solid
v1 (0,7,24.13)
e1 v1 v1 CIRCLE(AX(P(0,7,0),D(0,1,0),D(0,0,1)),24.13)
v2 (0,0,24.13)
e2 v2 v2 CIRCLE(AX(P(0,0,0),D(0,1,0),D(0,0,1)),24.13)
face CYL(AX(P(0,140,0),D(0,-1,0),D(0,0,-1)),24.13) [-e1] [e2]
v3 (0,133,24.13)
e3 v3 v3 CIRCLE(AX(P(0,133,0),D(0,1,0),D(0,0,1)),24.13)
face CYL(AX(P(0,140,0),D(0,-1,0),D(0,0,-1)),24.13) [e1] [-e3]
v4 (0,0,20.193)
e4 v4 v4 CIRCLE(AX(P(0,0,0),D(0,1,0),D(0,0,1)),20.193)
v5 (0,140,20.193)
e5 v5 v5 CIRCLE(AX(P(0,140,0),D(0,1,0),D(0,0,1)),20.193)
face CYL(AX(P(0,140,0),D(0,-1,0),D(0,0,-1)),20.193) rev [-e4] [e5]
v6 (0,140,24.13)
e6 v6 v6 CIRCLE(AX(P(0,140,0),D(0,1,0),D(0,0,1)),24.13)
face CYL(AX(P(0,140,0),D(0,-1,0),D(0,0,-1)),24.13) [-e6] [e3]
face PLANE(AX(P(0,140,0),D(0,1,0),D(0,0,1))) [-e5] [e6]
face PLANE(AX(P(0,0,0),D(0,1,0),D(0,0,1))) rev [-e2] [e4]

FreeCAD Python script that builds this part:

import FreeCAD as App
import Part
import Sketcher
Q = App.Units.Quantity

doc = App.newDocument("Part")
params = doc.addObject("Spreadsheet::Sheet", "Params")
for row, (alias, value) in enumerate([
    ("sketch1_diameter", "1.9 in"),
    ("sketch1_diameter2", "1.59 in"),
    ("pad1_length", "140 mm"),
], start=1):
    params.set(f"A{row}", alias)
    params.set(f"B{row}", "=" + value)
    params.setAlias(f"B{row}", alias)

body = doc.addObject("PartDesign::Body", "Body")

sketch1 = body.newObject("Sketcher::SketchObject", "Sketch")
sketch1.AttachmentSupport = (doc.getObject("XZ_Plane"), [""])
sketch1.MapMode = "FlatFace"
sketch1.addGeometry([
    Part.Circle(App.Vector(0, 0, 0), App.Vector(0, 0, 1), 24.13),
    Part.Circle(App.Vector(0, 0, 0), App.Vector(0, 0, 1), 20.193),
], False)
sketch1.addConstraint([
    Sketcher.Constraint("Coincident", 0, 3, -1, 1),
    Sketcher.Constraint("Coincident", 1, 3, -1, 1),
    Sketcher.Constraint("Diameter", 0, Q("1.9 in")),
    Sketcher.Constraint("Diameter", 1, Q("1.59 in")),
])
sketch1.setExpression("Constraints[2]", "Params.sketch1_diameter")
sketch1.setExpression("Constraints[3]", "Params.sketch1_diameter2")
pad1 = body.newObject("PartDesign::Pad", "Pad")
pad1.Profile = sketch1
pad1.setExpression("Length", "Params.pad1_length")
pad1.Reversed = True

doc.recompute()
